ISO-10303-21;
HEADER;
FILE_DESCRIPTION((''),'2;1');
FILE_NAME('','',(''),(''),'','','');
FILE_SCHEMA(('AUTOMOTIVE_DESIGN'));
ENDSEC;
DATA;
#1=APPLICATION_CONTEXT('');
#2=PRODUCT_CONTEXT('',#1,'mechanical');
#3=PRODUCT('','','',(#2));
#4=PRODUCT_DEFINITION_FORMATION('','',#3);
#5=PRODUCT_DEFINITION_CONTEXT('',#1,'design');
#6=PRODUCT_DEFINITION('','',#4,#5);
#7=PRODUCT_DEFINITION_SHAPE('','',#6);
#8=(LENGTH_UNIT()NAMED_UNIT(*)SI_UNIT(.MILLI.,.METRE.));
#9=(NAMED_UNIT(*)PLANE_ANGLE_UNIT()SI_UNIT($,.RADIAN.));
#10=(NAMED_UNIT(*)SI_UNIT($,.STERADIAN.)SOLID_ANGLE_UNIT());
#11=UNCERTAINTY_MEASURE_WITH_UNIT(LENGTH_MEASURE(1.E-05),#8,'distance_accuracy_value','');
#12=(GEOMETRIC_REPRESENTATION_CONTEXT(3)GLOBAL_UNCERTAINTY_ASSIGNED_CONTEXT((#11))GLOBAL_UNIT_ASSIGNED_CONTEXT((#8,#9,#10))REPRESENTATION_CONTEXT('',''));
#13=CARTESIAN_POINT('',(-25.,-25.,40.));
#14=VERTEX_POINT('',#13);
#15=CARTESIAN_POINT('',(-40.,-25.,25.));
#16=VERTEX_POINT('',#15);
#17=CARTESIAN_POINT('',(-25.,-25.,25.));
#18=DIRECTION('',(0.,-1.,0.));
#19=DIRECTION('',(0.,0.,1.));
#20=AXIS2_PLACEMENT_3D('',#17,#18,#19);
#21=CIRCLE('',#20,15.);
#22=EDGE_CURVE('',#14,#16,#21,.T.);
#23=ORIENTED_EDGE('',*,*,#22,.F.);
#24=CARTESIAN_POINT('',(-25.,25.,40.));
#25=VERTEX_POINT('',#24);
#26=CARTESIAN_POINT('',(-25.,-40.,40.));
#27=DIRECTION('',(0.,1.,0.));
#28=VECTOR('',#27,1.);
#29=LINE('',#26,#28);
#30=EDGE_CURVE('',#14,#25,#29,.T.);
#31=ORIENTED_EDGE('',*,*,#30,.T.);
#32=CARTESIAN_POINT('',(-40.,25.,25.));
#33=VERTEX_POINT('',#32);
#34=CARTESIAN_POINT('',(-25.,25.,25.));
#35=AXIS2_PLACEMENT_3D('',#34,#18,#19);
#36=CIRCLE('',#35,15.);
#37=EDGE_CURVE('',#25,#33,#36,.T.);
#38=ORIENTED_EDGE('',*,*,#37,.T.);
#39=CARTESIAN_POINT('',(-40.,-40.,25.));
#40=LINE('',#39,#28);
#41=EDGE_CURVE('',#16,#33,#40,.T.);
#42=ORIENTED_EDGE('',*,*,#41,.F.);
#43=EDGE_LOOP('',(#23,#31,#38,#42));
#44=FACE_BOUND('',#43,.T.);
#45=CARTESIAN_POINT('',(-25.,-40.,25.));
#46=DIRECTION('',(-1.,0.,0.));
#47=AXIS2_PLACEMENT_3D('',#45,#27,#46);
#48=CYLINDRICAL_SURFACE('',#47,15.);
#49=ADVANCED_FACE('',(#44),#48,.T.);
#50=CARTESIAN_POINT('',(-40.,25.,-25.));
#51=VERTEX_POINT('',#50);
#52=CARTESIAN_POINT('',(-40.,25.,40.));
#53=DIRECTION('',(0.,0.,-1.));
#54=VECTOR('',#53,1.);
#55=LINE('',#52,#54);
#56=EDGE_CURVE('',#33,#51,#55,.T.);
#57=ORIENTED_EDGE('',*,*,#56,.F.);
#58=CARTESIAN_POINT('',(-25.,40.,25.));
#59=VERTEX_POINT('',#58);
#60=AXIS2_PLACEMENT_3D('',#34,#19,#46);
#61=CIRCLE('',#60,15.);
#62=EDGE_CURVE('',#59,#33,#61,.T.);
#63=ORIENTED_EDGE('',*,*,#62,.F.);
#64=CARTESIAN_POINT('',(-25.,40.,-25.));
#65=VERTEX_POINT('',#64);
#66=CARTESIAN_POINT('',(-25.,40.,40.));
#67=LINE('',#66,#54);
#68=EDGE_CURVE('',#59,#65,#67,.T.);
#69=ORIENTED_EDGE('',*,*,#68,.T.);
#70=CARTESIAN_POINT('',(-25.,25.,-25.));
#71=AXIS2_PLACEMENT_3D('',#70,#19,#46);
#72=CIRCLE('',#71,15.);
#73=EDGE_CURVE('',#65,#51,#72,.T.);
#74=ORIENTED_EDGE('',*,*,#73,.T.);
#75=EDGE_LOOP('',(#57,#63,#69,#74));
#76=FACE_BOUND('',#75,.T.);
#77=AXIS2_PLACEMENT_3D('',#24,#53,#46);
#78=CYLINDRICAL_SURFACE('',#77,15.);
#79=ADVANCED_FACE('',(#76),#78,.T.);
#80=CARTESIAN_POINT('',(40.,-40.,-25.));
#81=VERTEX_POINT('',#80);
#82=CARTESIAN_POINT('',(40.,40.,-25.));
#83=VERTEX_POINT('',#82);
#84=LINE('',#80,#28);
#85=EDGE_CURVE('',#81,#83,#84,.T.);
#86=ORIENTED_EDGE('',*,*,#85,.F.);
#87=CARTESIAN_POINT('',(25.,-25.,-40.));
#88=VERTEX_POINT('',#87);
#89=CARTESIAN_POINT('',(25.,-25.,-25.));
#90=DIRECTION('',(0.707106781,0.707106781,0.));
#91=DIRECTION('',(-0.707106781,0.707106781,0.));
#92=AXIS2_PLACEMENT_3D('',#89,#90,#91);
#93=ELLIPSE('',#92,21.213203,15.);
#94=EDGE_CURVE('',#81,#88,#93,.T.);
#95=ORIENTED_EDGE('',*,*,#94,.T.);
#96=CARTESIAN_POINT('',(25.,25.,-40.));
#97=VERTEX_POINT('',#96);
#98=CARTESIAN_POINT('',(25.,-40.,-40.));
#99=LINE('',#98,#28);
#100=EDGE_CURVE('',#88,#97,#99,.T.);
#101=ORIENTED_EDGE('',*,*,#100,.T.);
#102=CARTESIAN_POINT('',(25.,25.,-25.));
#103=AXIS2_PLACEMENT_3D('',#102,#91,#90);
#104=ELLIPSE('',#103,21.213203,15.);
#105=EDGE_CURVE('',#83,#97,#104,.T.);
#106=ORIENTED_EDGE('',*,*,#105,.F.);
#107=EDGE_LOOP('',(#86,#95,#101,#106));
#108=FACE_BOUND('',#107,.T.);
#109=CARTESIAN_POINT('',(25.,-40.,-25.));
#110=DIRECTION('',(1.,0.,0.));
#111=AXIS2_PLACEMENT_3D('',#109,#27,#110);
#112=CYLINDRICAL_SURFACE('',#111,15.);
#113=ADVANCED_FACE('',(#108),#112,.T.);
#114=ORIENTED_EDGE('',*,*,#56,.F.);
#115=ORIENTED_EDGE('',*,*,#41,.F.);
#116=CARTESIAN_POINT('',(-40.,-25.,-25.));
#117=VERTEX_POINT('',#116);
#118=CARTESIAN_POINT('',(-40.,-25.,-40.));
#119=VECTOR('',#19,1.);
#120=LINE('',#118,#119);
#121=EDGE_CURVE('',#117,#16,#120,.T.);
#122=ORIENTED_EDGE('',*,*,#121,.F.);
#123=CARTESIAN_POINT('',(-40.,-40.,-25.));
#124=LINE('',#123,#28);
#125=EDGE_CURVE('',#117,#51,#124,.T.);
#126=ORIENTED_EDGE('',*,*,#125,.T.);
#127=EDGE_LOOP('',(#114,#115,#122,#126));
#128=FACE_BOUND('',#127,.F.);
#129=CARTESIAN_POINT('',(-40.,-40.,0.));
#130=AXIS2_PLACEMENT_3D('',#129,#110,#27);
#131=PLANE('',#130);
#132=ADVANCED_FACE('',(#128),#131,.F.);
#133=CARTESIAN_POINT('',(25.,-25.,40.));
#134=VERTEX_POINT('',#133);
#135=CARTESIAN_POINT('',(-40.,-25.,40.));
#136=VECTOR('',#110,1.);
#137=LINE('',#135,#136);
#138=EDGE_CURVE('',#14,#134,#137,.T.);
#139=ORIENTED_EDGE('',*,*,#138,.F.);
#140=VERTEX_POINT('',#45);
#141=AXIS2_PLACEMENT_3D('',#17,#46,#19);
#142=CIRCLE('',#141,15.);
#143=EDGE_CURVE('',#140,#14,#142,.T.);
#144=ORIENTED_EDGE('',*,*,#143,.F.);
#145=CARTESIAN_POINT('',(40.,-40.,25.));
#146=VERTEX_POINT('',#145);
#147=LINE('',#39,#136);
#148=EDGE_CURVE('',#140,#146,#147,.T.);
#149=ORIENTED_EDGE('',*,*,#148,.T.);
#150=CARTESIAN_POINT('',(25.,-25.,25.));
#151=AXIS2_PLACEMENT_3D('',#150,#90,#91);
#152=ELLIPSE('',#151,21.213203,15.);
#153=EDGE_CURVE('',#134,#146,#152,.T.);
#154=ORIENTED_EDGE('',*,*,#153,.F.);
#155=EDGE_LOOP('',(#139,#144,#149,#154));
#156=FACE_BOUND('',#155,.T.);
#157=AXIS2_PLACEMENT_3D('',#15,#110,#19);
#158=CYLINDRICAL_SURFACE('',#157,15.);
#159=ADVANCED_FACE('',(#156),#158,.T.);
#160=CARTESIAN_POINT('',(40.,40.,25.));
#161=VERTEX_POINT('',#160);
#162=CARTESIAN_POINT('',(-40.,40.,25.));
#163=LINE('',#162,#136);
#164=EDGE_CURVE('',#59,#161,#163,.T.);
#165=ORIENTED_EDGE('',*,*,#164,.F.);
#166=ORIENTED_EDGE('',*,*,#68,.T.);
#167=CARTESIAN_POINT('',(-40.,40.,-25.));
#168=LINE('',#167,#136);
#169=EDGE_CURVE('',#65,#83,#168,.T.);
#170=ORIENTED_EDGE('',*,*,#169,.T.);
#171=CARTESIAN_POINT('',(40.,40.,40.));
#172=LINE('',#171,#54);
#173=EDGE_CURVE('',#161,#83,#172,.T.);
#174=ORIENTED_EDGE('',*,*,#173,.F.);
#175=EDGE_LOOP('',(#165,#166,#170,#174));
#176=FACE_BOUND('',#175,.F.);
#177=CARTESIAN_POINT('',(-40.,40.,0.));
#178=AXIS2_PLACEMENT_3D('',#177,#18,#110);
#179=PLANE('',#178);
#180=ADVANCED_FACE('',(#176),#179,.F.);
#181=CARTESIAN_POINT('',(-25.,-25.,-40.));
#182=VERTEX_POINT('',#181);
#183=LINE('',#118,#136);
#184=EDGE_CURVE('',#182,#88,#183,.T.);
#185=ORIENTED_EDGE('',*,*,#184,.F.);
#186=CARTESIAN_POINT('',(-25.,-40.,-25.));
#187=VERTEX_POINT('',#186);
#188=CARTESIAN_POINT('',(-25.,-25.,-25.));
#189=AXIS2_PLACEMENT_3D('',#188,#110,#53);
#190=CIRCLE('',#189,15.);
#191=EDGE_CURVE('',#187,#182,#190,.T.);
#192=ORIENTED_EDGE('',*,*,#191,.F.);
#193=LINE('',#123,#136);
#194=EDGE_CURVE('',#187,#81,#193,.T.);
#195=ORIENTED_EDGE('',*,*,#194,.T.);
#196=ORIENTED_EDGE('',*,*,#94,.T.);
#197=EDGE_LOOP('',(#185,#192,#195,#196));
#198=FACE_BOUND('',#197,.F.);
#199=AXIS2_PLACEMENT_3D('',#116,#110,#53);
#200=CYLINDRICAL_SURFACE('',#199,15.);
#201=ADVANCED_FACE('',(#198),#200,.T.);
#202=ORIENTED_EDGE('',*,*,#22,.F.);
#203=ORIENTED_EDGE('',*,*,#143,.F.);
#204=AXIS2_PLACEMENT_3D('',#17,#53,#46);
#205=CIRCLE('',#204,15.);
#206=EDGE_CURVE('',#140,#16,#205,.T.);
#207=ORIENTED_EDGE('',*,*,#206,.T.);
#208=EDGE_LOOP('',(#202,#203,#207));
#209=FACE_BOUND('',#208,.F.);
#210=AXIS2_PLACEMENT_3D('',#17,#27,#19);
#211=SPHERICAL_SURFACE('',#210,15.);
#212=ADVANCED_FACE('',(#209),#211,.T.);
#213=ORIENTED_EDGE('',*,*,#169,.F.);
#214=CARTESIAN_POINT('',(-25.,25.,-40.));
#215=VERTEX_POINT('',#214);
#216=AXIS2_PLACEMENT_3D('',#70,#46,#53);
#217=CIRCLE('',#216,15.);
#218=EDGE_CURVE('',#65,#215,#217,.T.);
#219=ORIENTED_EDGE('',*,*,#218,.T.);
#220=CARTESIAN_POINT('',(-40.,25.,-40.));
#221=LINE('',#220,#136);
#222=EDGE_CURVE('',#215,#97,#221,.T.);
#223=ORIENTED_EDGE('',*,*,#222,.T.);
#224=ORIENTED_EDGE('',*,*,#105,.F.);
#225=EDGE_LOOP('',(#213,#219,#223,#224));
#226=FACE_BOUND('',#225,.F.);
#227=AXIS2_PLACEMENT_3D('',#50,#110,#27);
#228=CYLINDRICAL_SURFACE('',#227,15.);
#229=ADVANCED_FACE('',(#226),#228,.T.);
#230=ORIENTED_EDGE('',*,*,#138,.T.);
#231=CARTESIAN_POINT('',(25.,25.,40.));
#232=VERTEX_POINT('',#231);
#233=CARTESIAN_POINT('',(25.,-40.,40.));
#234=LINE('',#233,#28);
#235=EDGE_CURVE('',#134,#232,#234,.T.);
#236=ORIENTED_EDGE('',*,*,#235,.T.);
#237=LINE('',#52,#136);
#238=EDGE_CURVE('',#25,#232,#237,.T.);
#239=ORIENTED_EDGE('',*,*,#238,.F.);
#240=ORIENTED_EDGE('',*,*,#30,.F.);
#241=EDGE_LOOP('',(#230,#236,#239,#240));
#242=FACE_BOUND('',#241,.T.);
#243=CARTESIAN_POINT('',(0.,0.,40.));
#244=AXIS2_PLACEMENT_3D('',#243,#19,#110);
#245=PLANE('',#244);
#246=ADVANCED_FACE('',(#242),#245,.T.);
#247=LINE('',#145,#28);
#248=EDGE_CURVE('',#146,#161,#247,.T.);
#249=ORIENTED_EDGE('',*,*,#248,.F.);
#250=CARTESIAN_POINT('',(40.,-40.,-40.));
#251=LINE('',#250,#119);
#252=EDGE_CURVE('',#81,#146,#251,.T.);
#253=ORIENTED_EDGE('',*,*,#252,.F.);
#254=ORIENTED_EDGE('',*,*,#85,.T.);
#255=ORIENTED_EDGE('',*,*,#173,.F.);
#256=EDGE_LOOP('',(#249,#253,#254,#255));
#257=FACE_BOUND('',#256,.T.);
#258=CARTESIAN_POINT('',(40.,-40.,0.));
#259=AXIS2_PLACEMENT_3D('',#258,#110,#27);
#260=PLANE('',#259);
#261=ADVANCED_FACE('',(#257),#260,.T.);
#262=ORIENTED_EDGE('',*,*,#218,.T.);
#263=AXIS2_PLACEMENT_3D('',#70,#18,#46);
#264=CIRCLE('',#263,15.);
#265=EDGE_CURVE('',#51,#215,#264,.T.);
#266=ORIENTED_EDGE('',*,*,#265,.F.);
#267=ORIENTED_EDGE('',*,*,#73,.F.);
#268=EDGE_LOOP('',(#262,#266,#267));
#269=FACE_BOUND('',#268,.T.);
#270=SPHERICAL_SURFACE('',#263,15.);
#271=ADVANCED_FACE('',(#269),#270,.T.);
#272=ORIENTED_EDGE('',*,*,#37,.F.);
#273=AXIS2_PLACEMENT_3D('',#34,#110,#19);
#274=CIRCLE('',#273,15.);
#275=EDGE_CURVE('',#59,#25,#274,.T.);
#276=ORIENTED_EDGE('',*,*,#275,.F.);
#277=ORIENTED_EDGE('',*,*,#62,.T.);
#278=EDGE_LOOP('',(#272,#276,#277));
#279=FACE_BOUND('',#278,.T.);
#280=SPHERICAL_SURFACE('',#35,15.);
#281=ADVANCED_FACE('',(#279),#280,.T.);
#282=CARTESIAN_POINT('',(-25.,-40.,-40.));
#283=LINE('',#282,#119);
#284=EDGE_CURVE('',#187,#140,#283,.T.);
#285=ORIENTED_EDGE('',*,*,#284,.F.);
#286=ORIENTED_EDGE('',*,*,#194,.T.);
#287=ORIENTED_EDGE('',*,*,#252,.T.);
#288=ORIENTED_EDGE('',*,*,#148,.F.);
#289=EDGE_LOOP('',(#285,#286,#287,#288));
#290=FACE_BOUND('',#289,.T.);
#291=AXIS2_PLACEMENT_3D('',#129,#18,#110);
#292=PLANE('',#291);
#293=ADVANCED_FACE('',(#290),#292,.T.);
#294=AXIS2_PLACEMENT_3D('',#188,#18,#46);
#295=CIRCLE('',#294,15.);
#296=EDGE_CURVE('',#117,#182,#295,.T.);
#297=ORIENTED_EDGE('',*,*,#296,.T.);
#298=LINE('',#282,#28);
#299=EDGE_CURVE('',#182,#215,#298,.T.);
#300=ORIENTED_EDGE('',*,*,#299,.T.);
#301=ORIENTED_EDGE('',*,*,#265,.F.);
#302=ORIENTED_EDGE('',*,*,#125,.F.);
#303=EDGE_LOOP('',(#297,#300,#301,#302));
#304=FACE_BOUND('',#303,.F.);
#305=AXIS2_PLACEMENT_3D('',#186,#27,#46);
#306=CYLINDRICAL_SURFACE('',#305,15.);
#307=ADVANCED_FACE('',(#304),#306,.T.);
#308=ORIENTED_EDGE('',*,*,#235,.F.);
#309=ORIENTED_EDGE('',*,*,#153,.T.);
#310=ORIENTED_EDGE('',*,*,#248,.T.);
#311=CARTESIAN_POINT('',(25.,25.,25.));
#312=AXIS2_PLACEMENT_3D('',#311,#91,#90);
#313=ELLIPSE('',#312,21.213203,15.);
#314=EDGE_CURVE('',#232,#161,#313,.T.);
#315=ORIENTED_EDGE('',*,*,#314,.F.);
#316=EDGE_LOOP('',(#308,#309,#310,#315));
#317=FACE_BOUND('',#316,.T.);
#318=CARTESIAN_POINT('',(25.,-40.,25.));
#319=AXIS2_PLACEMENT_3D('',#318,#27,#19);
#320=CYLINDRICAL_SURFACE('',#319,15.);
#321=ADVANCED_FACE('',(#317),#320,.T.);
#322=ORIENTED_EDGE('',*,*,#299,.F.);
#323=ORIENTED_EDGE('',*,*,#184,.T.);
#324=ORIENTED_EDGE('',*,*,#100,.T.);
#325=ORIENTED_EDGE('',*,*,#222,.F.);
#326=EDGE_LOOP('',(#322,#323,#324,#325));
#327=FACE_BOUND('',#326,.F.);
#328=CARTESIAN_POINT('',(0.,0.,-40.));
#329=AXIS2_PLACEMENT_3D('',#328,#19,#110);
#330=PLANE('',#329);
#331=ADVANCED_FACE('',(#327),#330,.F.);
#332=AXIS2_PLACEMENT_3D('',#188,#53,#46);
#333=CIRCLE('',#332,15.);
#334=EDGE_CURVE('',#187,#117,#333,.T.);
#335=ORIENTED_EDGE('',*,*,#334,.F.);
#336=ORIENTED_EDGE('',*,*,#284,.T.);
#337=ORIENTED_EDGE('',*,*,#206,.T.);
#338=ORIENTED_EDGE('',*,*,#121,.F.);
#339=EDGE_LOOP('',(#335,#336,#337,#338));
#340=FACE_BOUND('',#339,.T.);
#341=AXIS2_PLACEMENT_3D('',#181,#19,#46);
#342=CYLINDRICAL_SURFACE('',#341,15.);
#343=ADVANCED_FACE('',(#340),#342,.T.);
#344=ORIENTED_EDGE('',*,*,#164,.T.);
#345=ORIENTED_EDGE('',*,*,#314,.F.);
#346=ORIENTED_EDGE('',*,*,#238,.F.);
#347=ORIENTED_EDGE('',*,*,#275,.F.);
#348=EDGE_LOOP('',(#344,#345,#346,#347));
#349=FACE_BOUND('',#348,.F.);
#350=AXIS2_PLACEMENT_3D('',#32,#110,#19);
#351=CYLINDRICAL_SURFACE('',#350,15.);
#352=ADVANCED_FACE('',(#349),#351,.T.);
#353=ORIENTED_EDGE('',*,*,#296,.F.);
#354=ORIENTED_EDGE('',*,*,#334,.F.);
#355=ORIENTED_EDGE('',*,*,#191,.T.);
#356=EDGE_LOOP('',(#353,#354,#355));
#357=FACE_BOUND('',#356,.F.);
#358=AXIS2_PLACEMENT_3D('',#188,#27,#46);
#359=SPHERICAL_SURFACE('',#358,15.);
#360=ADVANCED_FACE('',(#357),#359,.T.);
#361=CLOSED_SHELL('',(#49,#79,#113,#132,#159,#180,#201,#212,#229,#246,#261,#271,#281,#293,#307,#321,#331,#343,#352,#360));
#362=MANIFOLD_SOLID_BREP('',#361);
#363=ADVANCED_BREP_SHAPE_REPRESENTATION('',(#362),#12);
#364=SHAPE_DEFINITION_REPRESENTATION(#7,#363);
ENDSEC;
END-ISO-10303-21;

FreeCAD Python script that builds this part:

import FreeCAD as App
import Part
import Sketcher
Q = App.Units.Quantity


def edges_at(feature, points):
    """Names of the edges that pass closest to the given points."""
    edges = feature.Shape.Edges
    near = lambda p: min(range(len(edges)), key=lambda i: edges[i].distToShape(Part.Vertex(*p))[0])
    return sorted({f"Edge{near(p) + 1}" for p in points})


def add_polygon(sketch, points):
    """Adds a closed chain of lines whose ends are joined by coincident constraints."""
    first, n = sketch.GeometryCount, len(points)
    for a, b in zip(points, points[1:] + points[:1]):
        sketch.addGeometry(Part.LineSegment(App.Vector(*a, 0), App.Vector(*b, 0)), False)
    for i in range(n):
        sketch.addConstraint(Sketcher.Constraint("Coincident", first + i, 2, first + (i + 1) % n, 1))

doc = App.newDocument("Part")
body = doc.addObject("PartDesign::Body", "Body")

sketch1 = doc.addObject("Sketcher::SketchObject", "Sketch")
body.addObject(sketch1)
sketch1.AttachmentSupport = (doc.XY_Plane, [""])
sketch1.MapMode = "FlatFace"
add_polygon(sketch1, [(-40, 40), (-40, -40), (40, -40), (40, 40)])
sketch1.addConstraint(Sketcher.Constraint("Vertical", 0))
sketch1.addConstraint(Sketcher.Constraint("Horizontal", 1))
sketch1.addConstraint(Sketcher.Constraint("Vertical", 2))
sketch1.addConstraint(Sketcher.Constraint("Horizontal", 3))
sketch1.addConstraint(Sketcher.Constraint("Symmetric", 0, 2, 2, 2, -1, 1))
sketch1.addConstraint(Sketcher.Constraint("Equal", 3, 0))
sketch1.addConstraint(Sketcher.Constraint("DistanceX", 1, 1, 1, 2, Q("80 mm")))
pad1 = doc.addObject("PartDesign::Pad", "Pad")
body.addObject(pad1)
pad1.Profile = sketch1
pad1.Length = 80
pad1.Midplane = True
doc.recompute()

fillet = doc.addObject("PartDesign::Fillet", "Fillet")
body.addObject(fillet)
fillet.Base = (pad1, edges_at(pad1, [
    (-40, 0, 40),
    (40, 0, 40),
    (0, -40, 40),
    (0, 40, 40),
    (-40, 0, -40),
    (-40, -40, 0),
    (-40, 40, 0),
    (0, 40, -40),
    (40, 0, -40),
    (0, -40, -40),
]))
fillet.Radius = 15

doc.recompute()
